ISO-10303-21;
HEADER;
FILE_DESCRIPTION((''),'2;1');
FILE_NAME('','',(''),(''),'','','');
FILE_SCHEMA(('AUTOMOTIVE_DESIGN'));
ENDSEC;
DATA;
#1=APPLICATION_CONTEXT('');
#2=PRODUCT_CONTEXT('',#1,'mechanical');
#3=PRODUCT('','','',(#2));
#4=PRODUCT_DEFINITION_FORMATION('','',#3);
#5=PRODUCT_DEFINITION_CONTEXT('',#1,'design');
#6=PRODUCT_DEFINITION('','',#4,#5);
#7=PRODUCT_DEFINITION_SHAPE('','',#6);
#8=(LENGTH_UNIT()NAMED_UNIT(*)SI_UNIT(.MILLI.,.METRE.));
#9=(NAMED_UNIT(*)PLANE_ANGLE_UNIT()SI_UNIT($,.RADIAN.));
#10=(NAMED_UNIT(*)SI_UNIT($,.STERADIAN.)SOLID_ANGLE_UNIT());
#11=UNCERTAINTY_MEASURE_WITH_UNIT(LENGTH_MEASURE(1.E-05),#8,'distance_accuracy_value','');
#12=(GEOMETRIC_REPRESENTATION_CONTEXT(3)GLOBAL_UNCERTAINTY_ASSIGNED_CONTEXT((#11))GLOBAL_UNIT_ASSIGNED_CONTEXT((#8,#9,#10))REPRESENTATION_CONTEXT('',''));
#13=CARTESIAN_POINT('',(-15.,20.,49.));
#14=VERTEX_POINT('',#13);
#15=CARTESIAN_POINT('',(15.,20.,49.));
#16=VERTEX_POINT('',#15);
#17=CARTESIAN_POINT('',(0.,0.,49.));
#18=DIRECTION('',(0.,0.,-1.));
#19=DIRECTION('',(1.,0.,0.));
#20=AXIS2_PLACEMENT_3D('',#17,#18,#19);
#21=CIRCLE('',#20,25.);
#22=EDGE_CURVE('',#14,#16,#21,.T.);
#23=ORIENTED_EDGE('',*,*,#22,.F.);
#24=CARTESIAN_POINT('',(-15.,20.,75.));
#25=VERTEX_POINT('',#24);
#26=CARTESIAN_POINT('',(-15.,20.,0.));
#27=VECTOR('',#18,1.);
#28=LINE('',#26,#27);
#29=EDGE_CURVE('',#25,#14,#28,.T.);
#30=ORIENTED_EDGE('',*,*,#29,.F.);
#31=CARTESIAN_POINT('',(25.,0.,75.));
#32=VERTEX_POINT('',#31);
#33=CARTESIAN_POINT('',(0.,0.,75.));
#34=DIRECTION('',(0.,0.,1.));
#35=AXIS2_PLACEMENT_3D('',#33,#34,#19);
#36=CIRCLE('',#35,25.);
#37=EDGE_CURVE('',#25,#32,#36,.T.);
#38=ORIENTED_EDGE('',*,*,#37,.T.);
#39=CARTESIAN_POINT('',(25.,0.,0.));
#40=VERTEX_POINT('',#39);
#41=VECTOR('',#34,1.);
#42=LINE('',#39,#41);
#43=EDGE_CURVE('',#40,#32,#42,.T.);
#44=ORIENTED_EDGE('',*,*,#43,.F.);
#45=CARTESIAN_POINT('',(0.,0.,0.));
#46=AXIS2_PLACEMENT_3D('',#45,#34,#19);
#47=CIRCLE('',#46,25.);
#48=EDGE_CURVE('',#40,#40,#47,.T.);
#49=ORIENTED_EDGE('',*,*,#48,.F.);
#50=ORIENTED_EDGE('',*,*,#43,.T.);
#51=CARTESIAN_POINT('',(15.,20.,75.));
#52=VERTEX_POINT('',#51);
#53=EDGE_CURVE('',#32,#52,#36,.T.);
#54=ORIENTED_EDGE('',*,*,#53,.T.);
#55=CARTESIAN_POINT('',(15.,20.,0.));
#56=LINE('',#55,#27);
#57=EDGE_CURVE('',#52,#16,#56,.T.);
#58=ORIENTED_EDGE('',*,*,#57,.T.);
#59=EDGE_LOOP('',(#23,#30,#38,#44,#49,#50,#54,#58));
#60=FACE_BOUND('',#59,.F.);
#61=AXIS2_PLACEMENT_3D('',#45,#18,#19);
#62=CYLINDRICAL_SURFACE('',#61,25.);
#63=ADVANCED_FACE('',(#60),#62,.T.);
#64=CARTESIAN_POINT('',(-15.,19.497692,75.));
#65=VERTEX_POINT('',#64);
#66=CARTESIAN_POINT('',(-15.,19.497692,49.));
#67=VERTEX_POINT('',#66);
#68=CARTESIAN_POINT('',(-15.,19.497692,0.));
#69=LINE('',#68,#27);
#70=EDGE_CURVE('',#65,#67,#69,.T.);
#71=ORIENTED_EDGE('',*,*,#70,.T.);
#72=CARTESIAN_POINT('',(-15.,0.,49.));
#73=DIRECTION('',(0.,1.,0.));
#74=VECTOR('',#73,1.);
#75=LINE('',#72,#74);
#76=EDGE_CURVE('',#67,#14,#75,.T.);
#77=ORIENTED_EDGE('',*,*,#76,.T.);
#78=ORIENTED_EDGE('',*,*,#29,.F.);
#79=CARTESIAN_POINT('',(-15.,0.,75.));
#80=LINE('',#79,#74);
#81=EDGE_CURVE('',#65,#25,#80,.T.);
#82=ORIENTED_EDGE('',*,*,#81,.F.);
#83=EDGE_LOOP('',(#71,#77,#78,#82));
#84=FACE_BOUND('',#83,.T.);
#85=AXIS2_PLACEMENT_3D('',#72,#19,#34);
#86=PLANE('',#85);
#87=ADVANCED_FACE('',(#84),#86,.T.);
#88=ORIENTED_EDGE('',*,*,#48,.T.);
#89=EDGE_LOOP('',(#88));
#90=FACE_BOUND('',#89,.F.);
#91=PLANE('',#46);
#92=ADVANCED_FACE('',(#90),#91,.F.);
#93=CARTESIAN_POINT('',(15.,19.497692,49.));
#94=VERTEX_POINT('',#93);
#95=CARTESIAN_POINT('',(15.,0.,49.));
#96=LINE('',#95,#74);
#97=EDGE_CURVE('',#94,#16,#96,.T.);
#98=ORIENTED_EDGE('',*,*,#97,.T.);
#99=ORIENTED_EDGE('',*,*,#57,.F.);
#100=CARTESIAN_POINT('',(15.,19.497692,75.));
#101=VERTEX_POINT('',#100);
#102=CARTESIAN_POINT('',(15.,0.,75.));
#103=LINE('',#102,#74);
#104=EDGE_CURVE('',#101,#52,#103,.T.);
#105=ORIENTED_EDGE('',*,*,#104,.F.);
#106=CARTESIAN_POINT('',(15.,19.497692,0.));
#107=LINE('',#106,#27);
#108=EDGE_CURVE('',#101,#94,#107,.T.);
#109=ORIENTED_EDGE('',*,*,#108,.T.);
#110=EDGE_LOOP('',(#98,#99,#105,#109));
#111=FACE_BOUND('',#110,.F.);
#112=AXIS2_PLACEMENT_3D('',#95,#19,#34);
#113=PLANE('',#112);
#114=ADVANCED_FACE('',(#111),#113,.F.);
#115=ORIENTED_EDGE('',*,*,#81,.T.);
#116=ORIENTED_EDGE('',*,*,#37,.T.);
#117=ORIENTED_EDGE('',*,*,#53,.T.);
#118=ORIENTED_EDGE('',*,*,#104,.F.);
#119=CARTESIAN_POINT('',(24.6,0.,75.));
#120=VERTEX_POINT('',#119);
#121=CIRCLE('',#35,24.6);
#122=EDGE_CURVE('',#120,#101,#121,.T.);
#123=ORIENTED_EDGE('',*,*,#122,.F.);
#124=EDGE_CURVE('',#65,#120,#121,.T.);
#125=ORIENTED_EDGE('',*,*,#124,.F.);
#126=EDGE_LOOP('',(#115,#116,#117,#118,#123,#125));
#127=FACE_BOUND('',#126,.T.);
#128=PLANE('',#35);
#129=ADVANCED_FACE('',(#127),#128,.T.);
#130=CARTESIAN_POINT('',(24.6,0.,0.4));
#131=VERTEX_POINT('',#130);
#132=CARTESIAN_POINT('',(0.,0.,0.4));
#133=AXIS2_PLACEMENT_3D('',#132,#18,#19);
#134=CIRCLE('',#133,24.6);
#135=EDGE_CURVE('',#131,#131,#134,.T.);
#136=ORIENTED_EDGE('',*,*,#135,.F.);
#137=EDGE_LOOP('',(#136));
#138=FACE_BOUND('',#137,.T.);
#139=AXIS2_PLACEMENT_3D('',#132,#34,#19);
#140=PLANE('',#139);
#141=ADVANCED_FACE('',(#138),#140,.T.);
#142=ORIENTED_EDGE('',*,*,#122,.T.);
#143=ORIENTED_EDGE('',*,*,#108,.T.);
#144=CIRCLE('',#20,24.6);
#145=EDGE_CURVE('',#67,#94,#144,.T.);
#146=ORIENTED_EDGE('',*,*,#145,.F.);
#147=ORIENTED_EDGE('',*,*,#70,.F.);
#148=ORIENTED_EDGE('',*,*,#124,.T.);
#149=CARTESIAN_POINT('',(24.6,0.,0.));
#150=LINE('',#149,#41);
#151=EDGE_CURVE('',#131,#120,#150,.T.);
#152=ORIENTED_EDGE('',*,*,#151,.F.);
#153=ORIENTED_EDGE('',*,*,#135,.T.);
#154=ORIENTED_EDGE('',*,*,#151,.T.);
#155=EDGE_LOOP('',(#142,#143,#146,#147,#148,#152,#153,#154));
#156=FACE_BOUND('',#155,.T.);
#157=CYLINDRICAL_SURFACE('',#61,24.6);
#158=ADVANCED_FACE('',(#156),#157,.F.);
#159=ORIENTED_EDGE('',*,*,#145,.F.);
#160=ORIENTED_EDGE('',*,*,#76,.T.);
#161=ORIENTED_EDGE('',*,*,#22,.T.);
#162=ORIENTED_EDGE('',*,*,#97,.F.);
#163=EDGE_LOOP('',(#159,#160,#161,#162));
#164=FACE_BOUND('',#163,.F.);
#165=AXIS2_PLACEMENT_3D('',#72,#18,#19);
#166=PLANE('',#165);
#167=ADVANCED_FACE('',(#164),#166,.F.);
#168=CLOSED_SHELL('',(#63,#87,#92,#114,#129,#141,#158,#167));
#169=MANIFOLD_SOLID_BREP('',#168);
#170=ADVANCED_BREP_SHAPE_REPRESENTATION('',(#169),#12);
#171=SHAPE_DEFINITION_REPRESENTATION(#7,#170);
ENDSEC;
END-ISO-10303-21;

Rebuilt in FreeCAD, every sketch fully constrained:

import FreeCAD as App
import Part
import Sketcher
Q = App.Units.Quantity


def faces_at(feature, points):
    """Names of the faces that lie closest to the given points."""
    faces = feature.Shape.Faces
    near = lambda p: min(range(len(faces)), key=lambda i: faces[i].distToShape(Part.Vertex(*p))[0])
    return sorted({f"Face{near(p) + 1}" for p in points})

doc = App.newDocument("Part")
body = doc.addObject("PartDesign::Body", "Body")

# Sketch on XY plane
sketch1 = body.newObject("Sketcher::SketchObject", "Sketch")
sketch1.AttachmentSupport = (doc.getObject("XY_Plane"), [""])
sketch1.MapMode = "FlatFace"
sketch1.addGeometry(Part.Circle(App.Vector(0, 0, 0), App.Vector(0, 0, 1), 25), False)
sketch1.addConstraint([
    Sketcher.Constraint("Coincident", 0, 3, -1, 1),
    Sketcher.Constraint("Diameter", 0, Q("50 mm")),
])
pad1 = body.newObject("PartDesign::Pad", "Pad")
pad1.Profile = sketch1
pad1.Length = 75
doc.recompute()

thickness = body.newObject("PartDesign::Thickness", "Thickness")
thickness.Base = (pad1, faces_at(pad1, [(0, 0, 75)]))
thickness.Value = 0.4
thickness.Reversed = True
thickness.Join = "Arc"

# Sketch on XZ plane
sketch2 = body.newObject("Sketcher::SketchObject", "Sketch001")
sketch2.AttachmentSupport = (doc.getObject("XZ_Plane"), [""])
sketch2.MapMode = "FlatFace"
sketch2.addGeometry([
    Part.LineSegment(App.Vector(-15, 75, 0), App.Vector(-15, 49, 0)),
    Part.LineSegment(App.Vector(-15, 49, 0), App.Vector(15, 49, 0)),
    Part.LineSegment(App.Vector(15, 49, 0), App.Vector(15, 75, 0)),
    Part.LineSegment(App.Vector(15, 75, 0), App.Vector(-15, 75, 0)),
], False)
sketch2.addConstraint([
    Sketcher.Constraint("Coincident", 0, 2, 1, 1),
    Sketcher.Constraint("Coincident", 1, 2, 2, 1),
    Sketcher.Constraint("Coincident", 2, 2, 3, 1),
    Sketcher.Constraint("Coincident", 3, 2, 0, 1),
    Sketcher.Constraint("Vertical", 0),
    Sketcher.Constraint("Horizontal", 1),
    Sketcher.Constraint("Vertical", 2),
    Sketcher.Constraint("Horizontal", 3),
    Sketcher.Constraint("DistanceX", 1, 1, 1, 2, Q("30 mm")),
    Sketcher.Constraint("DistanceY", 0, 2, 0, 1, Q("26 mm")),
    Sketcher.Constraint("DistanceX", 0, 2, -1, 1, Q("15 mm")),
    Sketcher.Constraint("DistanceY", -1, 1, 0, 2, Q("49 mm")),
])
pocket1 = body.newObject("PartDesign::Pocket", "Pocket")
pocket1.Profile = sketch2
pocket1.Type = "ThroughAll"

doc.recompute()
